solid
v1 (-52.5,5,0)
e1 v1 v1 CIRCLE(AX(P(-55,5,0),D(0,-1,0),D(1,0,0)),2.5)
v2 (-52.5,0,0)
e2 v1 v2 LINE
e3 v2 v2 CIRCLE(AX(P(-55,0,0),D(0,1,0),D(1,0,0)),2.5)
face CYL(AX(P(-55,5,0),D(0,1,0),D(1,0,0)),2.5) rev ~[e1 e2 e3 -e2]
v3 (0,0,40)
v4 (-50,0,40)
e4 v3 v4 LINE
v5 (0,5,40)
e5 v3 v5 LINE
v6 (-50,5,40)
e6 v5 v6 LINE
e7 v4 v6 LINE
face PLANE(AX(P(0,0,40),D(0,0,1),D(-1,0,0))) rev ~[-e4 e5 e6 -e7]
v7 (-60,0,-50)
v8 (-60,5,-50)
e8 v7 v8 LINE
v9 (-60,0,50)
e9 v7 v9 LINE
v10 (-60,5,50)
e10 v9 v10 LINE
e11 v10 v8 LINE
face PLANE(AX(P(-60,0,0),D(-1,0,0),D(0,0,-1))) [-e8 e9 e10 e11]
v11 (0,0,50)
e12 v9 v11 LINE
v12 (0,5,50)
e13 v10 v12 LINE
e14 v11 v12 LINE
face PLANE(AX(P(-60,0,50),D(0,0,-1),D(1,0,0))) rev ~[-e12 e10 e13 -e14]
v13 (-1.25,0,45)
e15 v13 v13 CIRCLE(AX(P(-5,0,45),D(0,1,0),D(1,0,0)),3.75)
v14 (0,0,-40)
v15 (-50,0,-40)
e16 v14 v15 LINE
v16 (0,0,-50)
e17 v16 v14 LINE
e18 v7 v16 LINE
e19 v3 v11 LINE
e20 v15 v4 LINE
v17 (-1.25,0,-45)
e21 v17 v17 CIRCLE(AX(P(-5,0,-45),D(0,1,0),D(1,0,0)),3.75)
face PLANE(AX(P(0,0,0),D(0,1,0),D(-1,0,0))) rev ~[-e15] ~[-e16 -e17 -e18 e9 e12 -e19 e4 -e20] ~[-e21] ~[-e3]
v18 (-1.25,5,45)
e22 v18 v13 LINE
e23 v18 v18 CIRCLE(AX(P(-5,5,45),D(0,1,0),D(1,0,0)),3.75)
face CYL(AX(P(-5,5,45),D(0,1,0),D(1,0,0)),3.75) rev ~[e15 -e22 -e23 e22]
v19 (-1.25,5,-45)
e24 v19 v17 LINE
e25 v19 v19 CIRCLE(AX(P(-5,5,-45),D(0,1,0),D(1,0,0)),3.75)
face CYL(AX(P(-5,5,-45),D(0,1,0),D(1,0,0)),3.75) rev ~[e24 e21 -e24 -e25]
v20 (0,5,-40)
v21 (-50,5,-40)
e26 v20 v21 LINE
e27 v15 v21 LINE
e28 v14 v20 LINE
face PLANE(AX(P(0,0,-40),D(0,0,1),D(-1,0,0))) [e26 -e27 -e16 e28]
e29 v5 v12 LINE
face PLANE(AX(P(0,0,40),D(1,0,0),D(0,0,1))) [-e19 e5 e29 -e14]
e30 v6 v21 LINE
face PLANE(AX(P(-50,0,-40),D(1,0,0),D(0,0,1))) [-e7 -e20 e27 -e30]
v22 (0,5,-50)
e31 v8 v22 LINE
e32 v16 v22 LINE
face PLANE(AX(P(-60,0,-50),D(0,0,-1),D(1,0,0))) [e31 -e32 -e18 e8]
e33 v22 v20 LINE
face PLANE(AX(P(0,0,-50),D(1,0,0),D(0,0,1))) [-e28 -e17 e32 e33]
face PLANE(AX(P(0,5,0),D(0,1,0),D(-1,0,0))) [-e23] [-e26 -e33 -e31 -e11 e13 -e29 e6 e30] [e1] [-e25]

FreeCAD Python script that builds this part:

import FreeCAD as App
import Part
import Sketcher
from FreeCAD import Vector
Q = App.Units.Quantity


def add_polygon(sketch, points):
    """Adds a closed chain of lines whose ends are joined by coincident constraints."""
    first, n = sketch.GeometryCount, len(points)
    for a, b in zip(points, points[1:] + points[:1]):
        sketch.addGeometry(Part.LineSegment(App.Vector(*a, 0), App.Vector(*b, 0)), False)
    for i in range(n):
        sketch.addConstraint(Sketcher.Constraint("Coincident", first + i, 2, first + (i + 1) % n, 1))

doc = App.newDocument("Part")
body = doc.addObject("PartDesign::Body", "Body")

sketch1 = body.newObject("Sketcher::SketchObject", "Sketch")
sketch1.AttachmentSupport = (doc.getObject("XZ_Plane"), [""])
sketch1.MapMode = "FlatFace"
add_polygon(sketch1, [(-60, -50), (-60, 50), (0, 50), (0, 40), (-50, 40), (-50, -40), (0, -40), (0, -50)])
sketch1.addConstraint(Sketcher.Constraint("Vertical", 0))
sketch1.addConstraint(Sketcher.Constraint("Horizontal", 1))
sketch1.addConstraint(Sketcher.Constraint("Vertical", 2))
sketch1.addConstraint(Sketcher.Constraint("Horizontal", 3))
sketch1.addConstraint(Sketcher.Constraint("Vertical", 4))
sketch1.addConstraint(Sketcher.Constraint("Horizontal", 5))
sketch1.addConstraint(Sketcher.Constraint("Vertical", 6))
sketch1.addConstraint(Sketcher.Constraint("Horizontal", 7))
sketch1.addConstraint(Sketcher.Constraint("Symmetric", 2, 2, 5, 2, -1, 1))
sketch1.addConstraint(Sketcher.Constraint("Symmetric", 1, 2, 6, 2, -1))
sketch1.addConstraint(Sketcher.Constraint("DistanceX", 3, 2, 3, 1, Q("50 mm")))
sketch1.addConstraint(Sketcher.Constraint("DistanceY", 2, 2, 2, 1, Q("10 mm")))
sketch1.addConstraint(Sketcher.Constraint("DistanceY", -1, 1, 0, 2, Q("50 mm")))
sketch1.addConstraint(Sketcher.Constraint("DistanceX", 0, 2, 3, 2, Q("10 mm")))
pad1 = body.newObject("PartDesign::Pad", "Pad")
pad1.Profile = sketch1
pad1.Length = 5
pad1.Reversed = True

sketch2 = body.newObject("Sketcher::SketchObject", "Sketch001")
sketch2.AttachmentSupport = (doc.getObject("XZ_Plane"), [""])
sketch2.MapMode = "FlatFace"
sketch2.AttachmentOffset = App.Placement(Vector(0, 0, -5), App.Rotation())
sketch2.addGeometry(Part.Circle(Vector(-5, 45, 0), Vector(0, 0, 1), 3.8), False)
sketch2.addGeometry(Part.Circle(Vector(-55, 0, 0), Vector(0, 0, 1), 2.5), False)
sketch2.addGeometry(Part.Circle(Vector(-5, -45, 0), Vector(0, 0, 1), 3.8), False)
sketch2.addConstraint(Sketcher.Constraint("Equal", 0, 2))
sketch2.addConstraint(Sketcher.Constraint("Symmetric", 0, 3, 2, 3, -1))
sketch2.addConstraint(Sketcher.Constraint("PointOnObject", 1, 3, -1))
sketch2.addConstraint(Sketcher.Constraint("Diameter", 1, Q("5 mm")))
sketch2.addConstraint(Sketcher.Constraint("Diameter", 0, Q("7.5 mm")))
sketch2.addConstraint(Sketcher.Constraint("DistanceX", 0, 3, -1, 1, Q("5 mm")))
sketch2.addConstraint(Sketcher.Constraint("DistanceY", -1, 1, 0, 3, Q("45 mm")))
sketch2.addConstraint(Sketcher.Constraint("DistanceX", 1, 3, -1, 1, Q("55 mm")))
pocket1 = body.newObject("PartDesign::Pocket", "Pocket")
pocket1.Profile = sketch2
pocket1.Length = 5
pocket1.Reversed = True

doc.recompute()
